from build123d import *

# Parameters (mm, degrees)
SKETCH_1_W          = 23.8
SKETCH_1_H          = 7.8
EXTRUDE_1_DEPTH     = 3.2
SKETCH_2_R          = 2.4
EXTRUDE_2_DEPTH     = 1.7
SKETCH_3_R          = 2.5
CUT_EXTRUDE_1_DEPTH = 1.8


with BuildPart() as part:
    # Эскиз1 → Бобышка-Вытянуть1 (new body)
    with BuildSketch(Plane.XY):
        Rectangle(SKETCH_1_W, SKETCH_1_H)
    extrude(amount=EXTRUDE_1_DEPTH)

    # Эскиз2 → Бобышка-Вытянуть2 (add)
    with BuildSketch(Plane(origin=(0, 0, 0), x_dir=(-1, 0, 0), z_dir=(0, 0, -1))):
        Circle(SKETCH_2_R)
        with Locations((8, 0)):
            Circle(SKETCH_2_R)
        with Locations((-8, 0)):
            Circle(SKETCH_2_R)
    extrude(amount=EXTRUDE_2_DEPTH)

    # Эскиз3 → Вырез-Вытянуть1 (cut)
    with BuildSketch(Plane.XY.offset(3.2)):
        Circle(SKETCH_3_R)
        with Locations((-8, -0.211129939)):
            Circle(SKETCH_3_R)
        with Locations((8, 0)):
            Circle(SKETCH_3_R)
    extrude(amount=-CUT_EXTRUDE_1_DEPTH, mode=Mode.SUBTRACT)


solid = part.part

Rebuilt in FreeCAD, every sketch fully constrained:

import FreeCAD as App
import Part
import Sketcher
from FreeCAD import Vector
Q = App.Units.Quantity

doc = App.newDocument("Part")
body = doc.addObject("PartDesign::Body", "Body")

sketch1 = doc.addObject("Sketcher::SketchObject", "Sketch")
body.addObject(sketch1)
sketch1.AttachmentSupport = (doc.XY_Plane, [""])
sketch1.MapMode = "FlatFace"
sketch1.addGeometry(Part.LineSegment(Vector(-12, 4, 0), Vector(-12, -4, 0)), False)
sketch1.addGeometry(Part.LineSegment(Vector(-12, -4, 0), Vector(12, -4, 0)), False)
sketch1.addGeometry(Part.LineSegment(Vector(12, -4, 0), Vector(12, 4, 0)), False)
sketch1.addGeometry(Part.LineSegment(Vector(12, 4, 0), Vector(-12, 4, 0)), False)
sketch1.addConstraint(Sketcher.Constraint("Coincident", 0, 2, 1, 1))
sketch1.addConstraint(Sketcher.Constraint("Coincident", 1, 2, 2, 1))
sketch1.addConstraint(Sketcher.Constraint("Coincident", 2, 2, 3, 1))
sketch1.addConstraint(Sketcher.Constraint("Coincident", 3, 2, 0, 1))
sketch1.addConstraint(Sketcher.Constraint("Vertical", 0))
sketch1.addConstraint(Sketcher.Constraint("Horizontal", 1))
sketch1.addConstraint(Sketcher.Constraint("Vertical", 2))
sketch1.addConstraint(Sketcher.Constraint("Horizontal", 3))
sketch1.addConstraint(Sketcher.Constraint("Symmetric", 0, 2, 2, 2, -1, 1))
sketch1.addConstraint(Sketcher.Constraint("DistanceX", 1, 1, 1, 2, Q("23.8 mm")))
sketch1.addConstraint(Sketcher.Constraint("DistanceY", 0, 2, 0, 1, Q("7.8 mm")))
pad1 = doc.addObject("PartDesign::Pad", "Pad")
body.addObject(pad1)
pad1.Profile = sketch1
pad1.Length = 3.2

sketch2 = doc.addObject("Sketcher::SketchObject", "Sketch001")
body.addObject(sketch2)
sketch2.AttachmentSupport = (doc.XY_Plane, [""])
sketch2.MapMode = "FlatFace"
sketch2.addGeometry(Part.Circle(Vector(0, 0, 0), Vector(0, 0, 1), 2.4), False)
sketch2.addGeometry(Part.Circle(Vector(-8, 0, 0), Vector(0, 0, 1), 2.4), False)
sketch2.addGeometry(Part.Circle(Vector(8, 0, 0), Vector(0, 0, 1), 2.4), False)
sketch2.addConstraint(Sketcher.Constraint("Coincident", 0, 3, -1, 1))
sketch2.addConstraint(Sketcher.Constraint("Equal", 0, 1))
sketch2.addConstraint(Sketcher.Constraint("Equal", 1, 2))
sketch2.addConstraint(Sketcher.Constraint("Symmetric", 1, 3, 2, 3, -1, 1))
sketch2.addConstraint(Sketcher.Constraint("PointOnObject", 1, 3, -1))
sketch2.addConstraint(Sketcher.Constraint("Diameter", 0, Q("4.8 mm")))
sketch2.addConstraint(Sketcher.Constraint("DistanceX", 1, 3, -1, 1, Q("8 mm")))
pad2 = doc.addObject("PartDesign::Pad", "Pad001")
body.addObject(pad2)
pad2.Profile = sketch2
pad2.Length = 1.7
pad2.Reversed = True

sketch3 = doc.addObject("Sketcher::SketchObject", "Sketch002")
body.addObject(sketch3)
sketch3.AttachmentSupport = (doc.XY_Plane, [""])
sketch3.MapMode = "FlatFace"
sketch3.AttachmentOffset = App.Placement(Vector(0, 0, 3.2), App.Rotation())
sketch3.addGeometry(Part.Circle(Vector(0, 0, 0), Vector(0, 0, 1), 2.5), False)
sketch3.addGeometry(Part.Circle(Vector(-8, -0.2, 0), Vector(0, 0, 1), 2.5), False)
sketch3.addGeometry(Part.Circle(Vector(8, 0, 0), Vector(0, 0, 1), 2.5), False)
sketch3.addConstraint(Sketcher.Constraint("Coincident", 0, 3, -1, 1))
sketch3.addConstraint(Sketcher.Constraint("Equal", 0, 1))
sketch3.addConstraint(Sketcher.Constraint("Equal", 1, 2))
sketch3.addConstraint(Sketcher.Constraint("PointOnObject", 2, 3, -1))
sketch3.addConstraint(Sketcher.Constraint("Diameter", 0, Q("5 mm")))
sketch3.addConstraint(Sketcher.Constraint("DistanceX", 1, 3, -1, 1, Q("8 mm")))
sketch3.addConstraint(Sketcher.Constraint("DistanceX", -1, 1, 2, 3, Q("8 mm")))
sketch3.addConstraint(Sketcher.Constraint("DistanceY", 1, 3, -1, 1, Q("0.21113 mm")))
pocket1 = doc.addObject("PartDesign::Pocket", "Pocket")
body.addObject(pocket1)
pocket1.Profile = sketch3
pocket1.Length = 1.8

doc.recompute()
